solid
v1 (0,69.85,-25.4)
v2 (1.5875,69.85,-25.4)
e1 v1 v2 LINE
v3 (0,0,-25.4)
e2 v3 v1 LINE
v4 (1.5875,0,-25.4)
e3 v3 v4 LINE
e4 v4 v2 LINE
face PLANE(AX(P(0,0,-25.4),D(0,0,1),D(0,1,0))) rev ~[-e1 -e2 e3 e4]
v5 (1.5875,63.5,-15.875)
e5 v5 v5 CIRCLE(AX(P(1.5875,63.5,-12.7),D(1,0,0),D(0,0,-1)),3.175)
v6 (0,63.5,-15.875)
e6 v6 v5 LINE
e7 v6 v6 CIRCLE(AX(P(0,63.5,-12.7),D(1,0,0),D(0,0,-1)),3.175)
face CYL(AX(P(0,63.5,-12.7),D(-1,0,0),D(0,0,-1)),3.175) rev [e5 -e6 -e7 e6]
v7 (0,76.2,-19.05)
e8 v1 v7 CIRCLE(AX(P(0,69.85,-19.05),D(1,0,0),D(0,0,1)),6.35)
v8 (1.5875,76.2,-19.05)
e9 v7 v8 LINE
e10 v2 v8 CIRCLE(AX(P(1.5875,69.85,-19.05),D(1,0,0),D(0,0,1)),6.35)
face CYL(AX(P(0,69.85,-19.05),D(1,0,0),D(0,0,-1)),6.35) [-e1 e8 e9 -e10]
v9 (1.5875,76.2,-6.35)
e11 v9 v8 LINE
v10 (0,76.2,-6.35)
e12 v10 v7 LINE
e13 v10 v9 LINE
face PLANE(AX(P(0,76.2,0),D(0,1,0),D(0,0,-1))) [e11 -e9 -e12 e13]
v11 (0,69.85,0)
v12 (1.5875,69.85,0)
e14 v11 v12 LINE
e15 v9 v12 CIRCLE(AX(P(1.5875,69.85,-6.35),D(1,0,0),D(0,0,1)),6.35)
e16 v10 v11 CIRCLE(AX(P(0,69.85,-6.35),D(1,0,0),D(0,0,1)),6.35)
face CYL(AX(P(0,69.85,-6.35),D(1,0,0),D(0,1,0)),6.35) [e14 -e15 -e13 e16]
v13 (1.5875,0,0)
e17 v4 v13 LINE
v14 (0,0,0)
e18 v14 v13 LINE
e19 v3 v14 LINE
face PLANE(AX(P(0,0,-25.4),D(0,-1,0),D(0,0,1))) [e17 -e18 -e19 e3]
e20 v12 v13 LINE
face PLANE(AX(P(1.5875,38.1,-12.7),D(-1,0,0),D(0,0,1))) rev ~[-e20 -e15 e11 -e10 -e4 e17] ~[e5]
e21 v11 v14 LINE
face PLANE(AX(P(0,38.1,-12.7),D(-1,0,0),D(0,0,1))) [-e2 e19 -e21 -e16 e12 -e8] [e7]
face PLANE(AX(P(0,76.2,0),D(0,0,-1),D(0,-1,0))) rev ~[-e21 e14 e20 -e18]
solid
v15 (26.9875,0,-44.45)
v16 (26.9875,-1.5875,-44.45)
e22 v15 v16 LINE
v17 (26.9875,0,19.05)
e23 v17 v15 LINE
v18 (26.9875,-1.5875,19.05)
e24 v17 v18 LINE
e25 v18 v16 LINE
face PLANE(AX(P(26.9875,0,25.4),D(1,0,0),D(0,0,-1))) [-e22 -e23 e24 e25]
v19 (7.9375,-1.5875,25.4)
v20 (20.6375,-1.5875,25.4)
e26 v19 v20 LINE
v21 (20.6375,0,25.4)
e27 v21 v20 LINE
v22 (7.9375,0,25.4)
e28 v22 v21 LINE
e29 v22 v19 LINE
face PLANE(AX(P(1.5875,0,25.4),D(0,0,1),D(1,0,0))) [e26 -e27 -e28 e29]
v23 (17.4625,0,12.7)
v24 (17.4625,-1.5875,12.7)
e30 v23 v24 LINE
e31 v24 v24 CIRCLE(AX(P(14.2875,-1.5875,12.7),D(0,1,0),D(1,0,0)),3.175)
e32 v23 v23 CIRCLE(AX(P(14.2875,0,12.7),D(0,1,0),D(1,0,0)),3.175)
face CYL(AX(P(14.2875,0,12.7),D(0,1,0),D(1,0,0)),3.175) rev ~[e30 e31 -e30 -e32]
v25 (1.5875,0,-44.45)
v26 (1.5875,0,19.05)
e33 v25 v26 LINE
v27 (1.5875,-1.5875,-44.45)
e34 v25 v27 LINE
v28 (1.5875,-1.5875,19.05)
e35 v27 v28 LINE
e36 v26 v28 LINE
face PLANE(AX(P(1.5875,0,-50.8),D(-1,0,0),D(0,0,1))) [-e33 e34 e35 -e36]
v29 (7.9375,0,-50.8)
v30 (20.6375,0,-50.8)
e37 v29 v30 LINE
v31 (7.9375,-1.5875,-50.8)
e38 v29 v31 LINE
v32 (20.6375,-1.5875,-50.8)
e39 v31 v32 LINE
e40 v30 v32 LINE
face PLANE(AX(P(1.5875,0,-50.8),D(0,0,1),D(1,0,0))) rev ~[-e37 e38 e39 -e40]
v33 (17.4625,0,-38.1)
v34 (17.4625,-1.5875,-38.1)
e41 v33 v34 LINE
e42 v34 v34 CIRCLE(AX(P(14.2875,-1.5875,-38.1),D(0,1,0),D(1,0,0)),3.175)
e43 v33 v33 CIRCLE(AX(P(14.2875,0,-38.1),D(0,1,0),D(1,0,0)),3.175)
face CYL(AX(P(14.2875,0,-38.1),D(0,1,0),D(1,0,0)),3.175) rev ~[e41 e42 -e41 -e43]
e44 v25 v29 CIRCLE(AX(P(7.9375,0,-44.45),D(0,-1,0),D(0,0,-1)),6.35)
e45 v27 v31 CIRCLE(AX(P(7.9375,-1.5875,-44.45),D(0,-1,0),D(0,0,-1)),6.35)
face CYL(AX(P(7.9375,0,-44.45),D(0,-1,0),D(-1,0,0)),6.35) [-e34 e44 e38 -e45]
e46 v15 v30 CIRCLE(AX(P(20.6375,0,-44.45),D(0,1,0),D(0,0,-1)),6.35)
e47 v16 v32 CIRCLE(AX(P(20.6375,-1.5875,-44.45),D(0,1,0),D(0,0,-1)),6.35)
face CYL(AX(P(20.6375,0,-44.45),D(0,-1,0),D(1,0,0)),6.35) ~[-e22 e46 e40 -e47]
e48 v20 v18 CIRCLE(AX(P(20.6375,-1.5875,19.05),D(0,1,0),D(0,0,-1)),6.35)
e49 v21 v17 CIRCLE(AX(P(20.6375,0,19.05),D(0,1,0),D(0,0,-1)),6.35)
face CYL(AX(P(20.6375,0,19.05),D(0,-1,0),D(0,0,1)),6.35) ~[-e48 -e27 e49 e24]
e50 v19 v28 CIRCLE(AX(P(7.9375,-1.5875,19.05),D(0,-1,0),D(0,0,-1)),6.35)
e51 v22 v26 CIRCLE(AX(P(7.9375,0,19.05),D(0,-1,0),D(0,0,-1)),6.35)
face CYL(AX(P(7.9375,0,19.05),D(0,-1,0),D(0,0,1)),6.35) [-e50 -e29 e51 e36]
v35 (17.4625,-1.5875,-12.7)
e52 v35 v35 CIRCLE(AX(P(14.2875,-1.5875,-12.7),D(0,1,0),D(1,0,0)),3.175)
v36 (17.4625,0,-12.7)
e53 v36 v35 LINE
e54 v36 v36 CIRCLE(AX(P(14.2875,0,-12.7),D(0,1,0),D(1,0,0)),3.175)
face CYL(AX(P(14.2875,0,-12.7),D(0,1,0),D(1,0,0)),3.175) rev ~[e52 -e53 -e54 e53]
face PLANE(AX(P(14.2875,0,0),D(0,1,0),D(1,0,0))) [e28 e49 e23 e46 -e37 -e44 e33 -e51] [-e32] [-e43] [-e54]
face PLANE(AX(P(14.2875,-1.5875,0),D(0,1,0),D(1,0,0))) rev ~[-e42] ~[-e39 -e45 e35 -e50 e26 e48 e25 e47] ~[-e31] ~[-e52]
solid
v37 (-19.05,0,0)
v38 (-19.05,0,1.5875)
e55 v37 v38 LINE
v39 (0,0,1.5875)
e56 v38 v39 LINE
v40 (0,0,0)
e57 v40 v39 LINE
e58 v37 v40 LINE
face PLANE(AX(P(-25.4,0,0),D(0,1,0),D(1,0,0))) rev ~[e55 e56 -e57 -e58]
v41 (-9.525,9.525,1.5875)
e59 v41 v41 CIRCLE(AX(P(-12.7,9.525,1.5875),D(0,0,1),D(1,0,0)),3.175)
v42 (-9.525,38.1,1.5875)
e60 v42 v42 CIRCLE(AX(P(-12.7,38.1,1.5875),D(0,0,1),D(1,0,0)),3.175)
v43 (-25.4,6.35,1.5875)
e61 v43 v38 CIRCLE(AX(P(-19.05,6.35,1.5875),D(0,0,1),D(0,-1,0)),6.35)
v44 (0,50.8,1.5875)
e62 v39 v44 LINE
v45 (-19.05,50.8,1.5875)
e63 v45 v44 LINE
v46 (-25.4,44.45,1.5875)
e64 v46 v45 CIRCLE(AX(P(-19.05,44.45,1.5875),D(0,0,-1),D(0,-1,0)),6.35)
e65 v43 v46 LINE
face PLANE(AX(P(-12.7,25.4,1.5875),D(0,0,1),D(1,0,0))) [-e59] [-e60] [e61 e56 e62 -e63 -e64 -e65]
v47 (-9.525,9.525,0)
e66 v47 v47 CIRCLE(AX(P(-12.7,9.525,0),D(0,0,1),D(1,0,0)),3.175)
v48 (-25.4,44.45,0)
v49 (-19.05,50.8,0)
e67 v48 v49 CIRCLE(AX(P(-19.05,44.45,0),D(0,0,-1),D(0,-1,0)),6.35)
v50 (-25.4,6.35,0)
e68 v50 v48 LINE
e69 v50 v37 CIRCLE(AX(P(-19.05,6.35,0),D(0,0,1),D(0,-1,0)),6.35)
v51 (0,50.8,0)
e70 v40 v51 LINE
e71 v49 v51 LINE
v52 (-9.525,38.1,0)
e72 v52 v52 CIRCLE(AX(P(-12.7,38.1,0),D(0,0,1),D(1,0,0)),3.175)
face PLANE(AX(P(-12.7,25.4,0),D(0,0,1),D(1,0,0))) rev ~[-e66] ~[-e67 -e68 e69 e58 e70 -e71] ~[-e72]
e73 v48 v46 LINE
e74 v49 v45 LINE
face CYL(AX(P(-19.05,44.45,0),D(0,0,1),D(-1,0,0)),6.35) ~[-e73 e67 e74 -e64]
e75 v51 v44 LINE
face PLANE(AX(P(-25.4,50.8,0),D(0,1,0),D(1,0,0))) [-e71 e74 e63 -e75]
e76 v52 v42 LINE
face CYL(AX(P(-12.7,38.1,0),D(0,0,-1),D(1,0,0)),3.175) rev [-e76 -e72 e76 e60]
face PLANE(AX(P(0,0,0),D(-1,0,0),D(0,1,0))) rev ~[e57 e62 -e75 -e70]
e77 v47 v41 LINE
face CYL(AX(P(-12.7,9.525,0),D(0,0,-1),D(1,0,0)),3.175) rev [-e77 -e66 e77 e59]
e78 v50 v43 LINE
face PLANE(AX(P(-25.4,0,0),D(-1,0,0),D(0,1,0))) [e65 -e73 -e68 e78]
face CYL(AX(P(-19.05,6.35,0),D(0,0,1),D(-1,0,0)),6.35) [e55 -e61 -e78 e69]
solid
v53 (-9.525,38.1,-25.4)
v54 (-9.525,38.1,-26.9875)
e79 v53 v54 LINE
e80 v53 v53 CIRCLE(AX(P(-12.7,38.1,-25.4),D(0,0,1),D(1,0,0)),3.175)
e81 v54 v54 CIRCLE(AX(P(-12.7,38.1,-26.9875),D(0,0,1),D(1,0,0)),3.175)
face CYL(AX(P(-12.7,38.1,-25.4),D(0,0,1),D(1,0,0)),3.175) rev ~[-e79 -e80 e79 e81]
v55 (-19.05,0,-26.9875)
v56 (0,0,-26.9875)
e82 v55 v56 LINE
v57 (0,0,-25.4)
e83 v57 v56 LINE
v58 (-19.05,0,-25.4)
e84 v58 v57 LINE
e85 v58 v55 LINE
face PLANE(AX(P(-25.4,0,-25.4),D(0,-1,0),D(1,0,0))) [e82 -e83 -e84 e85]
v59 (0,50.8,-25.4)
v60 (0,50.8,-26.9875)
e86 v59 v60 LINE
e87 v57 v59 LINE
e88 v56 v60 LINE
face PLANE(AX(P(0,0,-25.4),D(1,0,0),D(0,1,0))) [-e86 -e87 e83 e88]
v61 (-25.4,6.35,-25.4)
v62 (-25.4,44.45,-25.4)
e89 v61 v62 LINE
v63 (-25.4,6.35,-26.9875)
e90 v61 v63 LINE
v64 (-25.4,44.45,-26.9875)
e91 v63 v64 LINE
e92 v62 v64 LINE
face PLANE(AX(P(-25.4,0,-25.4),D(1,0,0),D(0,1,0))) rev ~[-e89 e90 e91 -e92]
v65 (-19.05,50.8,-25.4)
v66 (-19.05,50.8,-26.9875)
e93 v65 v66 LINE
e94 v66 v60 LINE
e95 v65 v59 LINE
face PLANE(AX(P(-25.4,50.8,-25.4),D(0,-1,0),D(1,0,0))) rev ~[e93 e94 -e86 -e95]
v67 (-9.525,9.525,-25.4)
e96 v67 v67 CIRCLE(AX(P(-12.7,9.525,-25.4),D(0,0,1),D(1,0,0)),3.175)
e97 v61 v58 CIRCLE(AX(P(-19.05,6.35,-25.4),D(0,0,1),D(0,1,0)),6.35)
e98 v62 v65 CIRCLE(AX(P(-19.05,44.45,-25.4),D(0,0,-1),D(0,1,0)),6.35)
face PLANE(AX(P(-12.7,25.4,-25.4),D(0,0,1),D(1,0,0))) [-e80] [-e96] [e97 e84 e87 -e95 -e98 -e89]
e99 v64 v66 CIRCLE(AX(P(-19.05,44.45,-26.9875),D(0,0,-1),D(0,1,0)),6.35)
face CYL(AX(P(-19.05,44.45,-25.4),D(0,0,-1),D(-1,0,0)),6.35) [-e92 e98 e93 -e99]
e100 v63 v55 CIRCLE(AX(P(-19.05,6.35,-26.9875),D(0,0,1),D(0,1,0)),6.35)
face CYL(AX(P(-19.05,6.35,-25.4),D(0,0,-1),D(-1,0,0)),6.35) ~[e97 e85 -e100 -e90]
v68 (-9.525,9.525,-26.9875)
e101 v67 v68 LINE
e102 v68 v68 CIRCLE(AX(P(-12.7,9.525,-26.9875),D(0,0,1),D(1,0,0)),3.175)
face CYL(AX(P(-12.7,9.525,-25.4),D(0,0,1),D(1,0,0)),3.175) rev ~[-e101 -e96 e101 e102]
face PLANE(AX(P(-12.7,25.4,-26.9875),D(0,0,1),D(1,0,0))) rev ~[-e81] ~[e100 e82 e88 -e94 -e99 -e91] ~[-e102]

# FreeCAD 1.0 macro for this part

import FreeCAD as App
import Part
import Sketcher
from FreeCAD import Vector
Q = App.Units.Quantity


def edges_at(feature, points):
    """Names of the edges that pass closest to the given points."""
    edges = feature.Shape.Edges
    near = lambda p: min(range(len(edges)), key=lambda i: edges[i].distToShape(Part.Vertex(*p))[0])
    return sorted({f"Edge{near(p) + 1}" for p in points})


def add_polygon(sketch, points):
    """Adds a closed chain of lines whose ends are joined by coincident constraints."""
    first, n = sketch.GeometryCount, len(points)
    for a, b in zip(points, points[1:] + points[:1]):
        sketch.addGeometry(Part.LineSegment(App.Vector(*a, 0), App.Vector(*b, 0)), False)
    for i in range(n):
        sketch.addConstraint(Sketcher.Constraint("Coincident", first + i, 2, first + (i + 1) % n, 1))

doc = App.newDocument("Part")
body = doc.addObject("PartDesign::Body", "Body")

sketch1 = body.newObject("Sketcher::SketchObject", "Sketch")
sketch1.AttachmentSupport = (doc.getObject("XY_Plane"), [""])
sketch1.MapMode = "FlatFace"
add_polygon(sketch1, [(-25.4, 50.8), (-25.4, 0), (0, 0), (0, 50.8)])
sketch1.addGeometry(Part.Circle(Vector(-12.7, 9.5, 0), Vector(0, 0, 1), 3.2), False)
sketch1.addGeometry(Part.Circle(Vector(-12.7, 38.1, 0), Vector(0, 0, 1), 3.2), False)
sketch1.addConstraint([
    Sketcher.Constraint("Vertical", 0),
    Sketcher.Constraint("Horizontal", 1),
    Sketcher.Constraint("Vertical", 2),
    Sketcher.Constraint("Horizontal", 3),
    Sketcher.Constraint("Coincident", 1, 2, -1, 1),
    Sketcher.Constraint("Equal", 4, 5),
    Sketcher.Constraint("Vertical", 4, 3, 5, 3),
    Sketcher.Constraint("Diameter", 4, Q("0.25 in")),
    Sketcher.Constraint("DistanceX", 1, 1, 1, 2, Q("1 in")),
    Sketcher.Constraint("DistanceY", 0, 2, 0, 1, Q("2 in")),
    Sketcher.Constraint("DistanceX", 4, 3, -1, 1, Q("0.5 in")),
    Sketcher.Constraint("DistanceY", -1, 1, 5, 3, Q("1.5 in")),
    Sketcher.Constraint("DistanceY", -1, 1, 4, 3, Q("0.375 in")),
])
pad1 = body.newObject("PartDesign::Pad", "Pad")
pad1.Profile = sketch1
pad1.Length = Q("0.0625 in")
doc.recompute()

fillet = body.newObject("PartDesign::Fillet", "Fillet")
fillet.Base = (pad1, edges_at(pad1, [(-25.4, 0, 0.794), (-25.4, 50.8, 0.794)]))
fillet.Radius = Q("0.25 in")
body2 = doc.addObject("PartDesign::Body", "Body001")

sketch2 = body2.newObject("Sketcher::SketchObject", "Sketch001")
sketch2.AttachmentSupport = (doc.getObject("XY_Plane001"), [""])
sketch2.MapMode = "FlatFace"
sketch2.AttachmentOffset = App.Placement(Vector(0, 0, -1 * 25.4), App.Rotation())
add_polygon(sketch2, [(-25.4, 50.8), (-25.4, 0), (0, 0), (0, 50.8)])
sketch2.addGeometry(Part.Circle(Vector(-12.7, 9.5, 0), Vector(0, 0, 1), 3.2), False)
sketch2.addGeometry(Part.Circle(Vector(-12.7, 38.1, 0), Vector(0, 0, 1), 3.2), False)
sketch2.addConstraint([
    Sketcher.Constraint("Vertical", 0),
    Sketcher.Constraint("Horizontal", 1),
    Sketcher.Constraint("Vertical", 2),
    Sketcher.Constraint("Horizontal", 3),
    Sketcher.Constraint("Coincident", 1, 2, -1, 1),
    Sketcher.Constraint("Equal", 4, 5),
    Sketcher.Constraint("Vertical", 4, 3, 5, 3),
    Sketcher.Constraint("Diameter", 4, Q("0.25 in")),
    Sketcher.Constraint("DistanceX", 1, 1, 1, 2, Q("1 in")),
    Sketcher.Constraint("DistanceY", 0, 2, 0, 1, Q("2 in")),
    Sketcher.Constraint("DistanceX", 4, 3, -1, 1, Q("0.5 in")),
    Sketcher.Constraint("DistanceY", -1, 1, 5, 3, Q("1.5 in")),
    Sketcher.Constraint("DistanceY", -1, 1, 4, 3, Q("0.375 in")),
])
pad2 = body2.newObject("PartDesign::Pad", "Pad001")
pad2.Profile = sketch2
pad2.Length = Q("0.0625 in")
pad2.Reversed = True
doc.recompute()

fillet2 = body2.newObject("PartDesign::Fillet", "Fillet001")
fillet2.Base = (pad2, edges_at(pad2, [(-25.4, 0, -26.194), (-25.4, 50.8, -26.194)]))
fillet2.Radius = Q("0.25 in")
body3 = doc.addObject("PartDesign::Body", "Body002")

sketch3 = body3.newObject("Sketcher::SketchObject", "Sketch002")
sketch3.AttachmentSupport = (doc.getObject("YZ_Plane002"), [""])
sketch3.MapMode = "FlatFace"
add_polygon(sketch3, [(0, -25.4), (76.2, -25.4), (76.2, 0), (0, 0)])
sketch3.addGeometry(Part.Circle(Vector(63.5, -12.7, 0), Vector(0, 0, 1), 3.2), False)
sketch3.addConstraint([
    Sketcher.Constraint("Horizontal", 0),
    Sketcher.Constraint("Vertical", 1),
    Sketcher.Constraint("Horizontal", 2),
    Sketcher.Constraint("Vertical", 3),
    Sketcher.Constraint("Coincident", 2, 2, -1, 1),
    Sketcher.Constraint("Diameter", 4, Q("0.25 in")),
    Sketcher.Constraint("DistanceX", 0, 1, 0, 2, Q("3 in")),
    Sketcher.Constraint("DistanceY", 1, 1, 1, 2, Q("1 in")),
    Sketcher.Constraint("DistanceX", -1, 1, 4, 3, Q("2.5 in")),
    Sketcher.Constraint("DistanceY", 4, 3, -1, 1, Q("0.5 in")),
])
pad3 = body3.newObject("PartDesign::Pad", "Pad002")
pad3.Profile = sketch3
pad3.Length = Q("0.0625 in")
doc.recompute()

fillet3 = body3.newObject("PartDesign::Fillet", "Fillet002")
fillet3.Base = (pad3, edges_at(pad3, [(0.794, 76.2, 0), (0.794, 76.2, -25.4)]))
fillet3.Radius = Q("0.25 in")
body4 = doc.addObject("PartDesign::Body", "Body003")

sketch4 = body4.newObject("Sketcher::SketchObject", "Sketch003")
sketch4.AttachmentSupport = (doc.getObject("XZ_Plane003"), [""])
sketch4.MapMode = "FlatFace"
add_polygon(sketch4, [(1.6, 25.4), (27, 25.4), (27, -50.8), (1.6, -50.8)])
sketch4.addGeometry(Part.Circle(Vector(14.3, 12.7, 0), Vector(0, 0, 1), 3.2), False)
sketch4.addGeometry(Part.Circle(Vector(14.3, -12.7, 0), Vector(0, 0, 1), 3.2), False)
sketch4.addGeometry(Part.Circle(Vector(14.3, -38.1, 0), Vector(0, 0, 1), 3.2), False)
sketch4.addConstraint([
    Sketcher.Constraint("Horizontal", 0),
    Sketcher.Constraint("Vertical", 1),
    Sketcher.Constraint("Horizontal", 2),
    Sketcher.Constraint("Vertical", 3),
    Sketcher.Constraint("Equal", 4, 5),
    Sketcher.Constraint("Equal", 5, 6),
    Sketcher.Constraint("Symmetric", 4, 3, 5, 3, -1),
    Sketcher.Constraint("Vertical", 5, 3, 6, 3),
    Sketcher.Constraint("Diameter", 4, Q("0.25 in")),
    Sketcher.Constraint("DistanceX", 0, 1, 0, 2, Q("1 in")),
    Sketcher.Constraint("DistanceY", 1, 2, 1, 1, Q("3 in")),
    Sketcher.Constraint("DistanceY", -1, 1, 0, 2, Q("1 in")),
    Sketcher.Constraint("DistanceY", 5, 3, 4, 3, Q("1 in")),
    Sketcher.Constraint("DistanceY", 6, 3, 5, 3, Q("1 in")),
    Sketcher.Constraint("DistanceX", 4, 3, 0, 2, Q("0.5 in")),
    Sketcher.Constraint("DistanceX", -1, 1, 4, 3, Q("0.5625 in")),
])
pad4 = body4.newObject("PartDesign::Pad", "Pad003")
pad4.Profile = sketch4
pad4.Length = Q("0.0625 in")
doc.recompute()

fillet4 = body4.newObject("PartDesign::Fillet", "Fillet003")
fillet4.Base = (pad4, edges_at(pad4, [
    (1.587, -0.794, 25.4),
    (1.587, -0.794, -50.8),
    (26.988, -0.794, -50.8),
    (26.988, -0.794, 25.4),
]))
fillet4.Radius = Q("0.25 in")

doc.recompute()
